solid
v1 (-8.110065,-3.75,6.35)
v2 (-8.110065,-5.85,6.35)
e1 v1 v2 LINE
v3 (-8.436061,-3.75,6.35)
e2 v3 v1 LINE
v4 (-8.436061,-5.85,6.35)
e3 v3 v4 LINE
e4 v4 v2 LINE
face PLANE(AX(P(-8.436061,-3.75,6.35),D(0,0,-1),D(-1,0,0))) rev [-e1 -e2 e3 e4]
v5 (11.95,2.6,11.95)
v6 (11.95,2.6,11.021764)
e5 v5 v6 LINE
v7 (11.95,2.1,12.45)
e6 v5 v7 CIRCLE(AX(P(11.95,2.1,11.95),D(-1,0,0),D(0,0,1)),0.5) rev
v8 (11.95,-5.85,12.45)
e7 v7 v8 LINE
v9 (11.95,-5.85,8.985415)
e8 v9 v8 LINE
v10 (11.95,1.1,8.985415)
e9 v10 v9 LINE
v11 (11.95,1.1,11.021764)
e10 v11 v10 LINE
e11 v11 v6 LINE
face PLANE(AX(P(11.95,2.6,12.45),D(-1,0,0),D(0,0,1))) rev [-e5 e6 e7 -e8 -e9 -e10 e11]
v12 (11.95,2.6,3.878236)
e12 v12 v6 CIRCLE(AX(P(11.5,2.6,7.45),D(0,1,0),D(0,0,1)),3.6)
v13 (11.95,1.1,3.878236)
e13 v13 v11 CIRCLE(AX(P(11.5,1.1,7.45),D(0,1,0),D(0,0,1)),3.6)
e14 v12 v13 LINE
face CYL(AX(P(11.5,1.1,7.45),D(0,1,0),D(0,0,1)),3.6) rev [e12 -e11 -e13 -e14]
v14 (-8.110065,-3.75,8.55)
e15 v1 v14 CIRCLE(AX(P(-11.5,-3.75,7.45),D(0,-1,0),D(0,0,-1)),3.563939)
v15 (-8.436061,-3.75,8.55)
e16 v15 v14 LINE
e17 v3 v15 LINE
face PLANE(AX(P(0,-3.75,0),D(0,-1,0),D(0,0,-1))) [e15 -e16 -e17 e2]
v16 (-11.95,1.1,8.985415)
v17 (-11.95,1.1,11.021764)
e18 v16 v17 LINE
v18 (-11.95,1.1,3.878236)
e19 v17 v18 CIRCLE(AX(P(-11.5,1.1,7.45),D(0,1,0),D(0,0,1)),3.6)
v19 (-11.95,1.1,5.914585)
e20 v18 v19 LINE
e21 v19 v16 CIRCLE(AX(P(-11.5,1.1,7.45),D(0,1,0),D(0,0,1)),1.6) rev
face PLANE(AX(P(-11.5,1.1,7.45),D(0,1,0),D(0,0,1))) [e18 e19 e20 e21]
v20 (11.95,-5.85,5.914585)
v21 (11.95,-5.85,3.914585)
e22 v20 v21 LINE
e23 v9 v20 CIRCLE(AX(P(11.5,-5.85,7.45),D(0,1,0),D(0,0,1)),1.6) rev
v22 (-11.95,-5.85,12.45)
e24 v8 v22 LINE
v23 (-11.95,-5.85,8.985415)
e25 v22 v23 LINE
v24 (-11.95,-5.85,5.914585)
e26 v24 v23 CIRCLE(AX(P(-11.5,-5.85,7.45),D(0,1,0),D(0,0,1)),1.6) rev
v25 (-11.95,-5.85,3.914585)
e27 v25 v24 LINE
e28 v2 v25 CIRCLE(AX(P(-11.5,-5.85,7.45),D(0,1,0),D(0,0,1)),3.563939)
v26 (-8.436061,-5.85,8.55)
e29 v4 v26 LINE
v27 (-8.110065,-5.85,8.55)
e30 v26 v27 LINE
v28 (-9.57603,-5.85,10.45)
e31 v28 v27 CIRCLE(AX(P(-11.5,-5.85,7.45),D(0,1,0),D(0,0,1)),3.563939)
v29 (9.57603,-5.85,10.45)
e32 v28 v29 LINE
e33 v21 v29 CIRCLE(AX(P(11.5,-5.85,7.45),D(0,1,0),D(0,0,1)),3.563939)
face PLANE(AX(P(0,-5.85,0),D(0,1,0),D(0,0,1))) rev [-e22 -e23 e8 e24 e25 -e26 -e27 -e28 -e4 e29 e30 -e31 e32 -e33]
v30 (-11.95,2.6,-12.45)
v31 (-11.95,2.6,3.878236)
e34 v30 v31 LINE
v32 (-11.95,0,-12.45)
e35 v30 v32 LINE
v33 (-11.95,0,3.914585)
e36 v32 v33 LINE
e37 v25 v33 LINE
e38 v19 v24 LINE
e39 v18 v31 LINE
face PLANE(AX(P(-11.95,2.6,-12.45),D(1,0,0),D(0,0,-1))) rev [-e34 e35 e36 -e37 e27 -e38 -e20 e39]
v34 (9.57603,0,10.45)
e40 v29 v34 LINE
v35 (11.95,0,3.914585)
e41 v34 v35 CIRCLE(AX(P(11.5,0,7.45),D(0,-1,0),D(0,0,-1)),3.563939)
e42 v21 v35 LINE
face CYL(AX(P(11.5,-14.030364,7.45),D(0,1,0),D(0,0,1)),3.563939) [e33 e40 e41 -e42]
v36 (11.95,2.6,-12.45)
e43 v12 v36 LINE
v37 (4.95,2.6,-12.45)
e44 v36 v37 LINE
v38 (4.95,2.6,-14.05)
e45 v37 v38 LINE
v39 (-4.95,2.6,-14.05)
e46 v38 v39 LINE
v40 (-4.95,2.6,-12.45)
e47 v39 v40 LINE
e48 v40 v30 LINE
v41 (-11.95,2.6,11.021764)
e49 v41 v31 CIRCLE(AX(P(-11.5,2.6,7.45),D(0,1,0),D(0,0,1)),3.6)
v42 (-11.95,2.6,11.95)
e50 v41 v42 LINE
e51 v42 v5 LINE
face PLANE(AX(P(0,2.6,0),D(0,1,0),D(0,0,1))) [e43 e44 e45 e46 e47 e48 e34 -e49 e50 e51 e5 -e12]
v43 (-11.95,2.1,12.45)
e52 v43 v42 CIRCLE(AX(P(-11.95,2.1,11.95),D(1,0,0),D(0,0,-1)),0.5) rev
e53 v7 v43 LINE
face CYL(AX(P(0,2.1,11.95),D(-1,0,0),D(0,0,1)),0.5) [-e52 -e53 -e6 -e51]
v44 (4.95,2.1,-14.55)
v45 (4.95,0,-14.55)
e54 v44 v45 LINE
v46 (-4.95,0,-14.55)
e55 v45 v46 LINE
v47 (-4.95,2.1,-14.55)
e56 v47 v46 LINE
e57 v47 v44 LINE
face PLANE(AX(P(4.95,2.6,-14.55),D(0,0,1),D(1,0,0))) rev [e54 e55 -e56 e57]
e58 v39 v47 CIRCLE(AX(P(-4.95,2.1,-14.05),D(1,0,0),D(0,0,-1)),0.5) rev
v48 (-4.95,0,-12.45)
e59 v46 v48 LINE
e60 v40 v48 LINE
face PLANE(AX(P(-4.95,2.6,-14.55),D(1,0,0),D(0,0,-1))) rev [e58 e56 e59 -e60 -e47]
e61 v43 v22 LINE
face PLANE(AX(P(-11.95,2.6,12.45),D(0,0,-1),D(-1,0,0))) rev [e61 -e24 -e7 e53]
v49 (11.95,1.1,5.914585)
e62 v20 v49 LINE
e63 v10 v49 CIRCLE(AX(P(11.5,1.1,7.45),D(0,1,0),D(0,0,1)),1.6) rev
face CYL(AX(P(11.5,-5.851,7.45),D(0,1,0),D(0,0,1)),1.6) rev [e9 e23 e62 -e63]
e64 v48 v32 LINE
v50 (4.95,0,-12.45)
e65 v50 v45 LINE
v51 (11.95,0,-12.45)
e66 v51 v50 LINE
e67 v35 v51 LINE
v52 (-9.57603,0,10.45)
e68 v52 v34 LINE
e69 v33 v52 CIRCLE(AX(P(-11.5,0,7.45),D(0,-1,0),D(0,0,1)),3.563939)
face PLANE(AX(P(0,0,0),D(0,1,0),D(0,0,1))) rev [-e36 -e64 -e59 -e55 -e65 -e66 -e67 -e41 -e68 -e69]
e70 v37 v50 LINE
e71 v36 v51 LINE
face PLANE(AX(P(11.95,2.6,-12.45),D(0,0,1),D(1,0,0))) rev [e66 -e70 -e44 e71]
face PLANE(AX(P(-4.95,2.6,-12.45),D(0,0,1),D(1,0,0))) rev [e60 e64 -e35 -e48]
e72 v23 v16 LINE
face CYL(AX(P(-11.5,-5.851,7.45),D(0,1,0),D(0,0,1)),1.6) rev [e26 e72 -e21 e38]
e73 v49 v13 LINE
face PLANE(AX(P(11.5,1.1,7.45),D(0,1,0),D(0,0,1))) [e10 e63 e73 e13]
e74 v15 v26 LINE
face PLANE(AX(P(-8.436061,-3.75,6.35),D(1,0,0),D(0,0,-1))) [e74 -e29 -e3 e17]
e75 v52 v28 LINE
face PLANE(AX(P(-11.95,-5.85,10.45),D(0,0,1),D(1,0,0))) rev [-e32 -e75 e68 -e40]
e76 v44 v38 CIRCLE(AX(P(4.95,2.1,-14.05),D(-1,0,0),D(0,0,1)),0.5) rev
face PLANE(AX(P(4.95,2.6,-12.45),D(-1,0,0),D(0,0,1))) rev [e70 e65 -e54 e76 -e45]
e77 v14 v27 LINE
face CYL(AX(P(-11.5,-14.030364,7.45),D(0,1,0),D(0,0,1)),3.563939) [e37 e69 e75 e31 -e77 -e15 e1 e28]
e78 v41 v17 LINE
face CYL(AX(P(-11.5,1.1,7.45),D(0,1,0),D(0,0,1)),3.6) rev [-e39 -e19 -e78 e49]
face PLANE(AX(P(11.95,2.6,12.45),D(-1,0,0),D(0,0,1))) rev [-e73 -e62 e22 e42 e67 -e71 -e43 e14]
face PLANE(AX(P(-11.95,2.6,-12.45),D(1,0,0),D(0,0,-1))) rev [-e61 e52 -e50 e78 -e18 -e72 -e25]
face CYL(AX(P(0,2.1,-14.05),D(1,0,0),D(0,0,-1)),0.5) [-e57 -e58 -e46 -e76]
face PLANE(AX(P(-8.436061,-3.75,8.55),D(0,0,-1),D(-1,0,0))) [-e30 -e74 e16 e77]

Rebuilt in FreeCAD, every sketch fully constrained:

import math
import FreeCAD as App
import Part
import Sketcher
Q = App.Units.Quantity


def edges_at(feature, points):
    """Names of the edges that pass closest to the given points."""
    edges = feature.Shape.Edges
    near = lambda p: min(range(len(edges)), key=lambda i: edges[i].distToShape(Part.Vertex(*p))[0])
    return sorted({f"Edge{near(p) + 1}" for p in points})


def add_polygon(sketch, points):
    """Adds a closed chain of lines whose ends are joined by coincident constraints."""
    first, n = sketch.GeometryCount, len(points)
    for a, b in zip(points, points[1:] + points[:1]):
        sketch.addGeometry(Part.LineSegment(App.Vector(*a, 0), App.Vector(*b, 0)), False)
    for i in range(n):
        sketch.addConstraint(Sketcher.Constraint("Coincident", first + i, 2, first + (i + 1) % n, 1))

doc = App.newDocument("Part")
body = doc.addObject("PartDesign::Body", "Body")

sketch1 = body.newObject("Sketcher::SketchObject", "Sketch")
sketch1.AttachmentSupport = (doc.getObject("XZ_Plane"), [""])
sketch1.MapMode = "FlatFace"
add_polygon(sketch1, [(-11.9, -12.4), (-11.9, 12.4), (11.9, 12.4), (11.9, -12.4), (5, -12.4), (5, -14.6), (-5, -14.6), (-5, -12.4)])
sketch1.addConstraint(Sketcher.Constraint("Vertical", 0))
sketch1.addConstraint(Sketcher.Constraint("Horizontal", 1))
sketch1.addConstraint(Sketcher.Constraint("Vertical", 2))
sketch1.addConstraint(Sketcher.Constraint("Horizontal", 3))
sketch1.addConstraint(Sketcher.Constraint("Vertical", 4))
sketch1.addConstraint(Sketcher.Constraint("Horizontal", 5))
sketch1.addConstraint(Sketcher.Constraint("Vertical", 6))
sketch1.addConstraint(Sketcher.Constraint("Horizontal", 7))
sketch1.addConstraint(Sketcher.Constraint("Symmetric", 0, 2, 2, 2, -1, 1))
sketch1.addConstraint(Sketcher.Constraint("Symmetric", 3, 2, 6, 2, -2))
sketch1.addConstraint(Sketcher.Constraint("DistanceX", 3, 2, 3, 1, Q("7 mm")))
sketch1.addConstraint(Sketcher.Constraint("DistanceX", 1, 1, 1, 2, Q("23.9 mm")))
sketch1.addConstraint(Sketcher.Constraint("DistanceY", 0, 1, 0, 2, Q("24.9 mm")))
sketch1.addConstraint(Sketcher.Constraint("DistanceY", 4, 2, 4, 1, Q("2.1 mm")))
pad1 = body.newObject("PartDesign::Pad", "Pad")
pad1.Profile = sketch1
pad1.Length = 2.6
pad1.Reversed = True

sketch2 = body.newObject("Sketcher::SketchObject", "Sketch001")
sketch2.AttachmentSupport = (doc.getObject("XZ_Plane"), [""])
sketch2.MapMode = "FlatFace"
add_polygon(sketch2, [(-11.9, 12.4), (-11.9, 10.4), (11.9, 10.4), (11.9, 12.4)])
sketch2.addConstraint(Sketcher.Constraint("Vertical", 0))
sketch2.addConstraint(Sketcher.Constraint("Horizontal", 1))
sketch2.addConstraint(Sketcher.Constraint("Vertical", 2))
sketch2.addConstraint(Sketcher.Constraint("Horizontal", 3))
sketch2.addConstraint(Sketcher.Constraint("DistanceY", 0, 2, 0, 1, Q("2 mm")))
sketch2.addConstraint(Sketcher.Constraint("DistanceX", 1, 1, 1, 2, Q("23.9 mm")))
sketch2.addConstraint(Sketcher.Constraint("DistanceX", 0, 2, -1, 1, Q("11.95 mm")))
sketch2.addConstraint(Sketcher.Constraint("DistanceY", -1, 1, 0, 2, Q("10.45 mm")))
pad2 = body.newObject("PartDesign::Pad", "Pad001")
pad2.Profile = sketch2
pad2.Length = 5.85

sketch3 = body.newObject("Sketcher::SketchObject", "Sketch002")
sketch3.AttachmentSupport = (doc.getObject("XZ_Plane"), [""])
sketch3.MapMode = "FlatFace"
sketch3.AttachmentOffset = App.Placement(App.Vector(0, 0, -2.6), App.Rotation())
sketch3.addGeometry(Part.Circle(App.Vector(-11.5, 7.5, 0), App.Vector(0, 0, 1), 1.6), False)
sketch3.addConstraint(Sketcher.Constraint("Diameter", 0, Q("3.2 mm")))
sketch3.addConstraint(Sketcher.Constraint("DistanceX", 0, 3, -1, 1, Q("11.5 mm")))
sketch3.addConstraint(Sketcher.Constraint("DistanceY", -1, 1, 0, 3, Q("7.45 mm")))
pocket1 = body.newObject("PartDesign::Pocket", "Pocket")
pocket1.Profile = sketch3
pocket1.Type = "UpToFirst"
pocket1.Reversed = True

sketch4 = body.newObject("Sketcher::SketchObject", "Sketch003")
sketch4.AttachmentSupport = (doc.getObject("XZ_Plane"), [""])
sketch4.MapMode = "FlatFace"
sketch4.AttachmentOffset = App.Placement(App.Vector(0, 0, -2.6), App.Rotation())
sketch4.addGeometry(Part.Circle(App.Vector(11.5, 7.5, 0), App.Vector(0, 0, 1), 1.6), False)
sketch4.addConstraint(Sketcher.Constraint("Diameter", 0, Q("3.2 mm")))
sketch4.addConstraint(Sketcher.Constraint("DistanceX", -1, 1, 0, 3, Q("11.5 mm")))
sketch4.addConstraint(Sketcher.Constraint("DistanceY", -1, 1, 0, 3, Q("7.45 mm")))
pocket2 = body.newObject("PartDesign::Pocket", "Pocket001")
pocket2.Profile = sketch4
pocket2.Type = "UpToFirst"
pocket2.Reversed = True

sketch5 = body.newObject("Sketcher::SketchObject", "Sketch004")
sketch5.AttachmentSupport = (doc.getObject("XZ_Plane"), [""])
sketch5.MapMode = "FlatFace"
sketch5.addGeometry(Part.LineSegment(App.Vector(-11.9, 5.9, 0), App.Vector(-11.9, 3.9, 0)), False)
sketch5.addGeometry(Part.ArcOfCircle(Part.Circle(App.Vector(-11.5, 7.5, 0), App.Vector(0, 0, 1), 3.6), math.radians(-97), math.radians(97)), False)
sketch5.addGeometry(Part.LineSegment(App.Vector(-11.9, 11, 0), App.Vector(-11.9, 9, 0)), False)
sketch5.addGeometry(Part.ArcOfCircle(Part.Circle(App.Vector(-11.5, 7.5, 0), App.Vector(0, 0, 1), 1.6), math.radians(-106), math.radians(106)), False)
sketch5.addGeometry(Part.LineSegment(App.Vector(11.9, 9, 0), App.Vector(11.9, 11, 0)), False)
sketch5.addGeometry(Part.ArcOfCircle(Part.Circle(App.Vector(11.5, 7.5, 0), App.Vector(0, 0, 1), 3.6), math.radians(83), math.radians(277)), False)
sketch5.addGeometry(Part.LineSegment(App.Vector(11.9, 3.9, 0), App.Vector(11.9, 5.9, 0)), False)
sketch5.addGeometry(Part.ArcOfCircle(Part.Circle(App.Vector(11.5, 7.5, 0), App.Vector(0, 0, 1), 1.6), math.radians(74), math.radians(286)), False)
sketch5.addConstraint(Sketcher.Constraint("Coincident", 0, 2, 1, 1))
sketch5.addConstraint(Sketcher.Constraint("Coincident", 1, 2, 2, 1))
sketch5.addConstraint(Sketcher.Constraint("Coincident", 2, 2, 3, 2))
sketch5.addConstraint(Sketcher.Constraint("Coincident", 3, 1, 0, 1))
sketch5.addConstraint(Sketcher.Constraint("Coincident", 4, 2, 5, 1))
sketch5.addConstraint(Sketcher.Constraint("Coincident", 5, 2, 6, 1))
sketch5.addConstraint(Sketcher.Constraint("Coincident", 6, 2, 7, 2))
sketch5.addConstraint(Sketcher.Constraint("Coincident", 7, 1, 4, 1))
sketch5.addConstraint(Sketcher.Constraint("Vertical", 0))
sketch5.addConstraint(Sketcher.Constraint("Vertical", 2))
sketch5.addConstraint(Sketcher.Constraint("Vertical", 4))
sketch5.addConstraint(Sketcher.Constraint("Vertical", 6))
sketch5.addConstraint(Sketcher.Constraint("Coincident", 3, 3, 1, 3))
sketch5.addConstraint(Sketcher.Constraint("Coincident", 7, 3, 5, 3))
sketch5.addConstraint(Sketcher.Constraint("Equal", 1, 5))
sketch5.addConstraint(Sketcher.Constraint("Equal", 3, 7))
sketch5.addConstraint(Sketcher.Constraint("Symmetric", 1, 3, 5, 3, -2))
sketch5.addConstraint(Sketcher.Constraint("Horizontal", 1, 2, 4, 2))
sketch5.addConstraint(Sketcher.Constraint("Horizontal", 0, 2, 5, 2))
sketch5.addConstraint(Sketcher.Constraint("Vertical", 0, 2, 1, 2))
sketch5.addConstraint(Sketcher.Constraint("Radius", 3, Q("1.6 mm")))
sketch5.addConstraint(Sketcher.Constraint("DistanceY", 0, 2, 0, 1, Q("2 mm")))
sketch5.addConstraint(Sketcher.Constraint("DistanceX", 1, 3, 5, 3, Q("23 mm")))
sketch5.addConstraint(Sketcher.Constraint("DistanceX", 1, 2, 4, 2, Q("23.9 mm")))
sketch5.addConstraint(Sketcher.Constraint("DistanceY", -1, 1, 1, 3, Q("7.45 mm")))
pad3 = body.newObject("PartDesign::Pad", "Pad002")
pad3.Profile = sketch5
pad3.Length = 5.85

sketch6 = body.newObject("Sketcher::SketchObject", "Sketch005")
sketch6.AttachmentSupport = (doc.getObject("XZ_Plane"), [""])
sketch6.MapMode = "FlatFace"
sketch6.AttachmentOffset = App.Placement(App.Vector(0, 0, 5.85), App.Rotation())
add_polygon(sketch6, [(-8.4, 8.6), (-8.4, 6.3), (-7.4, 6.3), (-7.4, 8.6)])
sketch6.addConstraint(Sketcher.Constraint("Vertical", 0))
sketch6.addConstraint(Sketcher.Constraint("Horizontal", 1))
sketch6.addConstraint(Sketcher.Constraint("Vertical", 2))
sketch6.addConstraint(Sketcher.Constraint("Horizontal", 3))
sketch6.addConstraint(Sketcher.Constraint("DistanceX", 1, 1, 1, 2, Q("1 mm")))
sketch6.addConstraint(Sketcher.Constraint("DistanceY", 0, 2, 0, 1, Q("2.2 mm")))
sketch6.addConstraint(Sketcher.Constraint("DistanceY", -1, 1, 0, 2, Q("6.35 mm")))
sketch6.addConstraint(Sketcher.Constraint("DistanceX", 0, 2, -1, 1, Q("8.436061 mm")))
pocket3 = body.newObject("PartDesign::Pocket", "Pocket002")
pocket3.Profile = sketch6
pocket3.Length = 2.1

sketch7 = body.newObject("Sketcher::SketchObject", "Sketch006")
sketch7.AttachmentSupport = (doc.getObject("XZ_Plane"), [""])
sketch7.MapMode = "FlatFace"
sketch7.AttachmentOffset = App.Placement(App.Vector(0, 0, -2.6), App.Rotation())
sketch7.addGeometry(Part.Circle(App.Vector(11.5, 7.5, 0), App.Vector(0, 0, 1), 3.6), False)
sketch7.addGeometry(Part.Circle(App.Vector(-11.5, 7.5, 0), App.Vector(0, 0, 1), 3.6), False)
sketch7.addConstraint(Sketcher.Constraint("Equal", 0, 1))
sketch7.addConstraint(Sketcher.Constraint("Symmetric", 0, 3, 1, 3, -2))
sketch7.addConstraint(Sketcher.Constraint("Diameter", 0, Q("7.2 mm")))
sketch7.addConstraint(Sketcher.Constraint("DistanceX", 1, 3, 0, 3, Q("23 mm")))
sketch7.addConstraint(Sketcher.Constraint("DistanceY", -1, 1, 0, 3, Q("7.45 mm")))
pocket4 = body.newObject("PartDesign::Pocket", "Pocket003")
pocket4.Profile = sketch7
pocket4.Length = 1.5
pocket4.Reversed = True
doc.recompute()

fillet = body.newObject("PartDesign::Fillet", "Fillet")
fillet.Base = (pocket4, edges_at(pocket4, [(0, 2.6, 12.45), (0, 2.6, -14.55)]))
fillet.Radius = 0.5

doc.recompute()
